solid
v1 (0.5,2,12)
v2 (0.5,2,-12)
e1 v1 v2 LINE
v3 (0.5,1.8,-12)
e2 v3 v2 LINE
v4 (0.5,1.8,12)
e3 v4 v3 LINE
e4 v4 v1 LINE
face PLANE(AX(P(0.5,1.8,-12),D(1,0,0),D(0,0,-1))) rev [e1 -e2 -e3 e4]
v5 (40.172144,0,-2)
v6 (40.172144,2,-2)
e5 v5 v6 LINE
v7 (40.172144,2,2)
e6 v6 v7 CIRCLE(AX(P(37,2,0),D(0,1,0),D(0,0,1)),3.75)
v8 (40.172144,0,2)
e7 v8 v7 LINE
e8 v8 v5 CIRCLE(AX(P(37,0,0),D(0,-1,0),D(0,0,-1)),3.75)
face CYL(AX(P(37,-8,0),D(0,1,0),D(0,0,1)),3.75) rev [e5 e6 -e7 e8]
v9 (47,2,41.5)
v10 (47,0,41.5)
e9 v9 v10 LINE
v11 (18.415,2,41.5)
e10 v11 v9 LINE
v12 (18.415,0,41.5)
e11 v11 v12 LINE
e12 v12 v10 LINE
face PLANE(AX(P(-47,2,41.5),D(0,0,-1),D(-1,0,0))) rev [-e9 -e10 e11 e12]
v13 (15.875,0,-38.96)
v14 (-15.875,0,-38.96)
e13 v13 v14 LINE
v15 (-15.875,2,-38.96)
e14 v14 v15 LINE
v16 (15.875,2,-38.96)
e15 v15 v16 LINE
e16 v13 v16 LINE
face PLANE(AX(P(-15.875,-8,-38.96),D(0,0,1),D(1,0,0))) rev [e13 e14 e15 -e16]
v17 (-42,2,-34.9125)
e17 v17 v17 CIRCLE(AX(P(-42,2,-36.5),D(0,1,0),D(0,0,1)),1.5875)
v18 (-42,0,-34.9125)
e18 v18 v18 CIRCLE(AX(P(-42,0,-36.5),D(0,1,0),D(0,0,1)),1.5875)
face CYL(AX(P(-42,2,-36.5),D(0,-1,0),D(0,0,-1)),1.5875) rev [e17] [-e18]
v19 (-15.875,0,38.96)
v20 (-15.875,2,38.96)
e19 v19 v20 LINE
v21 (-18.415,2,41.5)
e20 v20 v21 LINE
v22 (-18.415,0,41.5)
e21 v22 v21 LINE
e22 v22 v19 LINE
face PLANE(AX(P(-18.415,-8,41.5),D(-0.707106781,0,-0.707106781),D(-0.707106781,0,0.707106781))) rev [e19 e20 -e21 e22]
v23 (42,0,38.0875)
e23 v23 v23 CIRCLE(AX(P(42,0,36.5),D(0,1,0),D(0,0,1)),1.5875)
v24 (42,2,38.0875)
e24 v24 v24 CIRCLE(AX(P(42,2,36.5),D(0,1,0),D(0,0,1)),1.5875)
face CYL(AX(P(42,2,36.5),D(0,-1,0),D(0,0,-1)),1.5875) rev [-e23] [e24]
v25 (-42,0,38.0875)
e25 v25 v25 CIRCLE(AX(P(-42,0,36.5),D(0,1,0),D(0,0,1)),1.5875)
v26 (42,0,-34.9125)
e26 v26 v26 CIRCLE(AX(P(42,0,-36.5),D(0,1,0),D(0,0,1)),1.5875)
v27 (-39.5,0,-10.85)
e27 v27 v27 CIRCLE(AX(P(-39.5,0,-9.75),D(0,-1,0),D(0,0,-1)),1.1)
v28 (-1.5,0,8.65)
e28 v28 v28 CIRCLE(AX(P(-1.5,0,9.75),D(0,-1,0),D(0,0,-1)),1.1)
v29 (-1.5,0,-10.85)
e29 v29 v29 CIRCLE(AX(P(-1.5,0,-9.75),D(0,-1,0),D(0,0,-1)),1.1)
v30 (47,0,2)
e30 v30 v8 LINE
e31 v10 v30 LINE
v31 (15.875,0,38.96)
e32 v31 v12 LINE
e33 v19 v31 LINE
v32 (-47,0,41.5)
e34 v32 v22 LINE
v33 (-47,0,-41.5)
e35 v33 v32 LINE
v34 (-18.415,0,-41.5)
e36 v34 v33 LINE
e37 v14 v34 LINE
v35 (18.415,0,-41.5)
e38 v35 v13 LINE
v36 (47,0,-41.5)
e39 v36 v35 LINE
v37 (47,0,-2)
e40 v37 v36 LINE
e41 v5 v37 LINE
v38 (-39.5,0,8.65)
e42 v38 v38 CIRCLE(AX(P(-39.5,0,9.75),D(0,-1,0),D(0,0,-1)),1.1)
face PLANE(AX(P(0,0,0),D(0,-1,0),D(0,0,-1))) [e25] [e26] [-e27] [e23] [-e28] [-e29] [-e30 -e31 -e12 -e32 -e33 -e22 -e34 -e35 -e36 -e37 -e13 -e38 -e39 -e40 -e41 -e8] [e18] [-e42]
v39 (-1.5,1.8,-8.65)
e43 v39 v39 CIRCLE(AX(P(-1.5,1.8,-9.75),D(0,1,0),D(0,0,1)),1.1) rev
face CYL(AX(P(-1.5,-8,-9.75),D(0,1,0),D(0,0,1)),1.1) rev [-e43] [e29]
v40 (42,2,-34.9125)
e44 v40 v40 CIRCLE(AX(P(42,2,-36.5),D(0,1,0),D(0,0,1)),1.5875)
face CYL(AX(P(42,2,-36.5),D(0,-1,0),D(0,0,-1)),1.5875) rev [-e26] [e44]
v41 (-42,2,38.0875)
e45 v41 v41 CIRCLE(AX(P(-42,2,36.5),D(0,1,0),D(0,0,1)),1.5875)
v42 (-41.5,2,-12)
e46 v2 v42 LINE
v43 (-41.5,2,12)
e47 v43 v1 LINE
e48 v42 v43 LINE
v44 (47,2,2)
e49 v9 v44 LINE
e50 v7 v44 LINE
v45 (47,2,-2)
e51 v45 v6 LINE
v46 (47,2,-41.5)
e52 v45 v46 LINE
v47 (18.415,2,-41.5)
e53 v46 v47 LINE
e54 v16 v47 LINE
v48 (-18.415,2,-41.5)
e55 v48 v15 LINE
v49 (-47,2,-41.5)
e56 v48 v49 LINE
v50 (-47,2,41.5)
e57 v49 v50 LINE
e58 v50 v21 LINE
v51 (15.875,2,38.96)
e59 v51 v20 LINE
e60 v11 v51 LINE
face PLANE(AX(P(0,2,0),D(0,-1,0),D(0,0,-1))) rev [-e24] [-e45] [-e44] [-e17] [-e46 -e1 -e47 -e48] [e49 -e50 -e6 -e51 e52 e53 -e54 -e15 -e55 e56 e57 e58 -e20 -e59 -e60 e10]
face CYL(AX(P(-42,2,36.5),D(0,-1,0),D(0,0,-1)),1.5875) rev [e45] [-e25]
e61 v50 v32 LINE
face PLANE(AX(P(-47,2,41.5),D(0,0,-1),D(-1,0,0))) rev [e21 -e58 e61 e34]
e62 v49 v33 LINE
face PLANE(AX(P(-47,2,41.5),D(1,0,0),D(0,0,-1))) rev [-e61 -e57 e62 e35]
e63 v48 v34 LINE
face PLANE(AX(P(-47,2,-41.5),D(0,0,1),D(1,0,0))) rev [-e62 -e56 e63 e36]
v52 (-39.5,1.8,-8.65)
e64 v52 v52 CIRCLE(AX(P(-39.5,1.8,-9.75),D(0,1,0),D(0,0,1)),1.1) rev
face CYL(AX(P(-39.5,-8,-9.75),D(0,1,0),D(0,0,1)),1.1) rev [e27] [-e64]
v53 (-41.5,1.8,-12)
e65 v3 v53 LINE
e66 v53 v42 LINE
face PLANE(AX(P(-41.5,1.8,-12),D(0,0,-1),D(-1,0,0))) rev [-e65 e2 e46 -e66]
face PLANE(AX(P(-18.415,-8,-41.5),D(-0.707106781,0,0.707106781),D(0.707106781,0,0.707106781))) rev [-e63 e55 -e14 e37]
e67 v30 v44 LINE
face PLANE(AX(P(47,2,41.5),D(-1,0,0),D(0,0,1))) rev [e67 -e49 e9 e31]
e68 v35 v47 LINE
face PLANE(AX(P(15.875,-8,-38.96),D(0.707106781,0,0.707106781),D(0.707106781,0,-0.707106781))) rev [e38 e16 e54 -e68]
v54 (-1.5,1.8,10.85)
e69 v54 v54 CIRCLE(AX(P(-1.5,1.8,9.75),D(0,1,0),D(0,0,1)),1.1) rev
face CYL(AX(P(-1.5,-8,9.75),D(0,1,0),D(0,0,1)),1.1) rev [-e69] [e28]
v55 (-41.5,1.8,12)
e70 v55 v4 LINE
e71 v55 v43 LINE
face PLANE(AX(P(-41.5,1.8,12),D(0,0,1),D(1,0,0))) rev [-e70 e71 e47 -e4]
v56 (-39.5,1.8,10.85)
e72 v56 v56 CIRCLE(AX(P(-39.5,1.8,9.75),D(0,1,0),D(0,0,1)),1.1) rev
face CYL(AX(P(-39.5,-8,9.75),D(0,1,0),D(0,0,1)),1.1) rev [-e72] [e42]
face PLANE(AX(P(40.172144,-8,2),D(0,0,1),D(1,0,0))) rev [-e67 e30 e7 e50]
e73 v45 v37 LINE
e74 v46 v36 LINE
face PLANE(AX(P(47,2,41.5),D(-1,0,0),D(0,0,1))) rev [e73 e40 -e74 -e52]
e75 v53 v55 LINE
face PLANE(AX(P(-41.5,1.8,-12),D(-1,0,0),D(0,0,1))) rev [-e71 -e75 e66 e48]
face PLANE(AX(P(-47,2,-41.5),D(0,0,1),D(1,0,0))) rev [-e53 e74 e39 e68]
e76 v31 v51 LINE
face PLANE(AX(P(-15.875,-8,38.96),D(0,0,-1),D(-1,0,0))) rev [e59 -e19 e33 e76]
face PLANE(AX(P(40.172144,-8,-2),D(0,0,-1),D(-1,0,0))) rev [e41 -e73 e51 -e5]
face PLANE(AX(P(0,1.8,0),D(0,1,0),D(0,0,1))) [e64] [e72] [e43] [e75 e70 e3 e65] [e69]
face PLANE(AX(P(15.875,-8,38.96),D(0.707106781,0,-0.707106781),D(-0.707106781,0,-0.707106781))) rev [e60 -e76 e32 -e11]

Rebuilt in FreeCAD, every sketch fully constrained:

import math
import FreeCAD as App
import Part
import Sketcher

V = App.Vector

doc = App.newDocument("Part")
body = doc.addObject("PartDesign::Body", "Body")

sketch1 = body.newObject("Sketcher::SketchObject", "Sketch")
sketch1.AttachmentSupport = (doc.getObject("XZ_Plane"), [""])
sketch1.MapMode = "FlatFace"
sketch1.addGeometry(Part.LineSegment(V(-47, -41.5, 0), V(-47, 41.5, 0)), False)
sketch1.addGeometry(Part.LineSegment(V(-47, 41.5, 0), V(47, 41.5, 0)), False)
sketch1.addGeometry(Part.LineSegment(V(47, 41.5, 0), V(47, -41.5, 0)), False)
sketch1.addGeometry(Part.LineSegment(V(47, -41.5, 0), V(-47, -41.5, 0)), False)
sketch1.addGeometry(Part.Circle(V(-42, 36.5, 0), V(0, 0, 1), 1.6), False)
sketch1.addGeometry(Part.Circle(V(42, 36.5, 0), V(0, 0, 1), 1.6), False)
sketch1.addGeometry(Part.Circle(V(-42, -36.5, 0), V(0, 0, 1), 1.6), False)
sketch1.addGeometry(Part.Circle(V(42, -36.5, 0), V(0, 0, 1), 1.6), False)
sketch1.addConstraint(Sketcher.Constraint("Coincident", 0, 2, 1, 1))
sketch1.addConstraint(Sketcher.Constraint("Coincident", 1, 2, 2, 1))
sketch1.addConstraint(Sketcher.Constraint("Coincident", 2, 2, 3, 1))
sketch1.addConstraint(Sketcher.Constraint("Coincident", 3, 2, 0, 1))
sketch1.addConstraint(Sketcher.Constraint("Vertical", 0))
sketch1.addConstraint(Sketcher.Constraint("Horizontal", 1))
sketch1.addConstraint(Sketcher.Constraint("Vertical", 2))
sketch1.addConstraint(Sketcher.Constraint("Horizontal", 3))
sketch1.addConstraint(Sketcher.Constraint("Equal", 4, 5))
sketch1.addConstraint(Sketcher.Constraint("Equal", 5, 6))
sketch1.addConstraint(Sketcher.Constraint("Equal", 6, 7))
sketch1.addConstraint(Sketcher.Constraint("Symmetric", 5, 3, 6, 3, -1, 1))
sketch1.addConstraint(Sketcher.Constraint("Symmetric", 4, 3, 7, 3, -1, 1))
sketch1.addConstraint(Sketcher.Constraint("Symmetric", 0, 2, 2, 2, -1, 1))
sketch1.addConstraint(Sketcher.Constraint("Symmetric", 4, 3, 5, 3, -2))
sketch1.addConstraint(Sketcher.Constraint("DistanceX", 1, 1, 1, 2, 94.0))
sketch1.addConstraint(Sketcher.Constraint("DistanceY", 0, 1, 0, 2, 83.0))
sketch1.addConstraint(Sketcher.Constraint("Diameter", 4, 3.175))
sketch1.addConstraint(Sketcher.Constraint("DistanceX", 4, 3, -1, 1, 42.0))
sketch1.addConstraint(Sketcher.Constraint("DistanceY", 6, 3, 4, 3, 73.0))
pad1 = body.newObject("PartDesign::Pad", "Pad")
pad1.Profile = sketch1
pad1.Length = 2
pad1.Reversed = True

sketch2 = body.newObject("Sketcher::SketchObject", "Sketch001")
sketch2.AttachmentSupport = (doc.getObject("XZ_Plane"), [""])
sketch2.MapMode = "FlatFace"
sketch2.AttachmentOffset = App.Placement(V(0, 0, -2), App.Rotation())
sketch2.addGeometry(Part.Circle(V(-39.5, -9.8, 0), V(0, 0, 1), 1.1), False)
sketch2.addGeometry(Part.Circle(V(-1.5, -9.8, 0), V(0, 0, 1), 1.1), False)
sketch2.addGeometry(Part.Circle(V(-1.5, 9.8, 0), V(0, 0, 1), 1.1), False)
sketch2.addGeometry(Part.Circle(V(-39.5, 9.8, 0), V(0, 0, 1), 1.1), False)
sketch2.addGeometry(Part.LineSegment(V(47, -2, 0), V(40.2, -2, 0)), False)
sketch2.addGeometry(Part.ArcOfCircle(Part.Circle(V(37, 0, 0), V(0, 0, 1), 3.8), math.radians(32), math.radians(328)), False)
sketch2.addGeometry(Part.LineSegment(V(40.2, 2, 0), V(47, 2, 0)), False)
sketch2.addGeometry(Part.LineSegment(V(47, 2, 0), V(47, -2, 0)), False)
sketch2.addGeometry(Part.LineSegment(V(-15.9, 39, 0), V(-18.4, 41.5, 0)), False)
sketch2.addGeometry(Part.LineSegment(V(-18.4, 41.5, 0), V(18.4, 41.5, 0)), False)
sketch2.addGeometry(Part.LineSegment(V(18.4, 41.5, 0), V(15.9, 39, 0)), False)
sketch2.addGeometry(Part.LineSegment(V(15.9, 39, 0), V(-15.9, 39, 0)), False)
sketch2.addGeometry(Part.LineSegment(V(-18.4, -41.5, 0), V(-15.9, -39, 0)), False)
sketch2.addGeometry(Part.LineSegment(V(-15.9, -39, 0), V(15.9, -39, 0)), False)
sketch2.addGeometry(Part.LineSegment(V(15.9, -39, 0), V(18.4, -41.5, 0)), False)
sketch2.addGeometry(Part.LineSegment(V(18.4, -41.5, 0), V(-18.4, -41.5, 0)), False)
sketch2.addConstraint(Sketcher.Constraint("Coincident", 4, 2, 5, 2))
sketch2.addConstraint(Sketcher.Constraint("Coincident", 5, 1, 6, 1))
sketch2.addConstraint(Sketcher.Constraint("Coincident", 6, 2, 7, 1))
sketch2.addConstraint(Sketcher.Constraint("Coincident", 7, 2, 4, 1))
sketch2.addConstraint(Sketcher.Constraint("Coincident", 8, 2, 9, 1))
sketch2.addConstraint(Sketcher.Constraint("Coincident", 9, 2, 10, 1))
sketch2.addConstraint(Sketcher.Constraint("Coincident", 10, 2, 11, 1))
sketch2.addConstraint(Sketcher.Constraint("Coincident", 11, 2, 8, 1))
sketch2.addConstraint(Sketcher.Constraint("Coincident", 12, 2, 13, 1))
sketch2.addConstraint(Sketcher.Constraint("Coincident", 13, 2, 14, 1))
sketch2.addConstraint(Sketcher.Constraint("Coincident", 14, 2, 15, 1))
sketch2.addConstraint(Sketcher.Constraint("Coincident", 15, 2, 12, 1))
sketch2.addConstraint(Sketcher.Constraint("Horizontal", 4))
sketch2.addConstraint(Sketcher.Constraint("Horizontal", 6))
sketch2.addConstraint(Sketcher.Constraint("Vertical", 7))
sketch2.addConstraint(Sketcher.Constraint("Horizontal", 9))
sketch2.addConstraint(Sketcher.Constraint("Horizontal", 11))
sketch2.addConstraint(Sketcher.Constraint("Horizontal", 13))
sketch2.addConstraint(Sketcher.Constraint("Horizontal", 15))
sketch2.addConstraint(Sketcher.Constraint("Equal", 0, 1))
sketch2.addConstraint(Sketcher.Constraint("Equal", 1, 2))
sketch2.addConstraint(Sketcher.Constraint("Equal", 2, 3))
sketch2.addConstraint(Sketcher.Constraint("Symmetric", 10, 2, 12, 2, -1, 1))
sketch2.addConstraint(Sketcher.Constraint("Symmetric", 8, 2, 14, 2, -1, 1))
sketch2.addConstraint(Sketcher.Constraint("Symmetric", 1, 3, 2, 3, -1))
sketch2.addConstraint(Sketcher.Constraint("Symmetric", 0, 3, 3, 3, -1))
sketch2.addConstraint(Sketcher.Constraint("Symmetric", 4, 2, 5, 1, -1))
sketch2.addConstraint(Sketcher.Constraint("Perpendicular", 8, 10))
sketch2.addConstraint(Sketcher.Constraint("Parallel", 10, 12))
sketch2.addConstraint(Sketcher.Constraint("Perpendicular", 12, 14))
sketch2.addConstraint(Sketcher.Constraint("Horizontal", 0, 3, 1, 3))
sketch2.addConstraint(Sketcher.Constraint("Vertical", 11, 2, 12, 2))
sketch2.addConstraint(Sketcher.Constraint("Vertical", 9, 2, 14, 2))
sketch2.addConstraint(Sketcher.Constraint("Diameter", 0, 2.2))
sketch2.addConstraint(Sketcher.Constraint("DistanceY", 7, 2, 7, 1, 4.0))
sketch2.addConstraint(Sketcher.Constraint("Radius", 5, 3.75))
sketch2.addConstraint(Sketcher.Constraint("DistanceX", -1, 1, 5, 3, 37.0))
sketch2.addConstraint(Sketcher.Constraint("DistanceX", -1, 1, 6, 2, 47.0))
sketch2.addConstraint(Sketcher.Constraint("DistanceX", 0, 3, 1, 3, 38.0))
sketch2.addConstraint(Sketcher.Constraint("DistanceX", 9, 1, 9, 2, 36.83))
sketch2.addConstraint(Sketcher.Constraint("DistanceX", 11, 2, 11, 1, 31.75))
sketch2.addConstraint(Sketcher.Constraint("DistanceX", 0, 3, -1, 1, 39.5))
sketch2.addConstraint(Sketcher.Constraint("DistanceY", -1, 1, 8, 2, 41.5))
sketch2.addConstraint(Sketcher.Constraint("DistanceY", 1, 3, 2, 3, 19.5))
pocket1 = body.newObject("PartDesign::Pocket", "Pocket")
pocket1.Profile = sketch2
pocket1.Length = 10
pocket1.Reversed = True

sketch3 = body.newObject("Sketcher::SketchObject", "Sketch002")
sketch3.AttachmentSupport = (doc.getObject("XZ_Plane"), [""])
sketch3.MapMode = "FlatFace"
sketch3.AttachmentOffset = App.Placement(V(0, 0, -2), App.Rotation())
sketch3.addGeometry(Part.LineSegment(V(-42, -12, 0), V(-42, 12, 0)), False)
sketch3.addGeometry(Part.LineSegment(V(-42, 12, 0), V(0, 12, 0)), False)
sketch3.addGeometry(Part.LineSegment(V(0, 12, 0), V(0, -12, 0)), False)
sketch3.addGeometry(Part.LineSegment(V(0, -12, 0), V(-42, -12, 0)), False)
sketch3.addConstraint(Sketcher.Constraint("Coincident", 0, 2, 1, 1))
sketch3.addConstraint(Sketcher.Constraint("Coincident", 1, 2, 2, 1))
sketch3.addConstraint(Sketcher.Constraint("Coincident", 2, 2, 3, 1))
sketch3.addConstraint(Sketcher.Constraint("Coincident", 3, 2, 0, 1))
sketch3.addConstraint(Sketcher.Constraint("Vertical", 0))
sketch3.addConstraint(Sketcher.Constraint("Horizontal", 1))
sketch3.addConstraint(Sketcher.Constraint("Vertical", 2))
sketch3.addConstraint(Sketcher.Constraint("Horizontal", 3))
sketch3.addConstraint(Sketcher.Constraint("DistanceX", 1, 1, 1, 2, 42.0))
sketch3.addConstraint(Sketcher.Constraint("DistanceY", 0, 1, 0, 2, 24.0))
sketch3.addConstraint(Sketcher.Constraint("DistanceY", -1, 1, 0, 2, 12.0))
sketch3.addConstraint(Sketcher.Constraint("DistanceX", 0, 2, -1, 1, 41.5))
pocket2 = body.newObject("PartDesign::Pocket", "Pocket001")
pocket2.Profile = sketch3
pocket2.Length = 0.2
pocket2.Reversed = True

doc.recompute()
